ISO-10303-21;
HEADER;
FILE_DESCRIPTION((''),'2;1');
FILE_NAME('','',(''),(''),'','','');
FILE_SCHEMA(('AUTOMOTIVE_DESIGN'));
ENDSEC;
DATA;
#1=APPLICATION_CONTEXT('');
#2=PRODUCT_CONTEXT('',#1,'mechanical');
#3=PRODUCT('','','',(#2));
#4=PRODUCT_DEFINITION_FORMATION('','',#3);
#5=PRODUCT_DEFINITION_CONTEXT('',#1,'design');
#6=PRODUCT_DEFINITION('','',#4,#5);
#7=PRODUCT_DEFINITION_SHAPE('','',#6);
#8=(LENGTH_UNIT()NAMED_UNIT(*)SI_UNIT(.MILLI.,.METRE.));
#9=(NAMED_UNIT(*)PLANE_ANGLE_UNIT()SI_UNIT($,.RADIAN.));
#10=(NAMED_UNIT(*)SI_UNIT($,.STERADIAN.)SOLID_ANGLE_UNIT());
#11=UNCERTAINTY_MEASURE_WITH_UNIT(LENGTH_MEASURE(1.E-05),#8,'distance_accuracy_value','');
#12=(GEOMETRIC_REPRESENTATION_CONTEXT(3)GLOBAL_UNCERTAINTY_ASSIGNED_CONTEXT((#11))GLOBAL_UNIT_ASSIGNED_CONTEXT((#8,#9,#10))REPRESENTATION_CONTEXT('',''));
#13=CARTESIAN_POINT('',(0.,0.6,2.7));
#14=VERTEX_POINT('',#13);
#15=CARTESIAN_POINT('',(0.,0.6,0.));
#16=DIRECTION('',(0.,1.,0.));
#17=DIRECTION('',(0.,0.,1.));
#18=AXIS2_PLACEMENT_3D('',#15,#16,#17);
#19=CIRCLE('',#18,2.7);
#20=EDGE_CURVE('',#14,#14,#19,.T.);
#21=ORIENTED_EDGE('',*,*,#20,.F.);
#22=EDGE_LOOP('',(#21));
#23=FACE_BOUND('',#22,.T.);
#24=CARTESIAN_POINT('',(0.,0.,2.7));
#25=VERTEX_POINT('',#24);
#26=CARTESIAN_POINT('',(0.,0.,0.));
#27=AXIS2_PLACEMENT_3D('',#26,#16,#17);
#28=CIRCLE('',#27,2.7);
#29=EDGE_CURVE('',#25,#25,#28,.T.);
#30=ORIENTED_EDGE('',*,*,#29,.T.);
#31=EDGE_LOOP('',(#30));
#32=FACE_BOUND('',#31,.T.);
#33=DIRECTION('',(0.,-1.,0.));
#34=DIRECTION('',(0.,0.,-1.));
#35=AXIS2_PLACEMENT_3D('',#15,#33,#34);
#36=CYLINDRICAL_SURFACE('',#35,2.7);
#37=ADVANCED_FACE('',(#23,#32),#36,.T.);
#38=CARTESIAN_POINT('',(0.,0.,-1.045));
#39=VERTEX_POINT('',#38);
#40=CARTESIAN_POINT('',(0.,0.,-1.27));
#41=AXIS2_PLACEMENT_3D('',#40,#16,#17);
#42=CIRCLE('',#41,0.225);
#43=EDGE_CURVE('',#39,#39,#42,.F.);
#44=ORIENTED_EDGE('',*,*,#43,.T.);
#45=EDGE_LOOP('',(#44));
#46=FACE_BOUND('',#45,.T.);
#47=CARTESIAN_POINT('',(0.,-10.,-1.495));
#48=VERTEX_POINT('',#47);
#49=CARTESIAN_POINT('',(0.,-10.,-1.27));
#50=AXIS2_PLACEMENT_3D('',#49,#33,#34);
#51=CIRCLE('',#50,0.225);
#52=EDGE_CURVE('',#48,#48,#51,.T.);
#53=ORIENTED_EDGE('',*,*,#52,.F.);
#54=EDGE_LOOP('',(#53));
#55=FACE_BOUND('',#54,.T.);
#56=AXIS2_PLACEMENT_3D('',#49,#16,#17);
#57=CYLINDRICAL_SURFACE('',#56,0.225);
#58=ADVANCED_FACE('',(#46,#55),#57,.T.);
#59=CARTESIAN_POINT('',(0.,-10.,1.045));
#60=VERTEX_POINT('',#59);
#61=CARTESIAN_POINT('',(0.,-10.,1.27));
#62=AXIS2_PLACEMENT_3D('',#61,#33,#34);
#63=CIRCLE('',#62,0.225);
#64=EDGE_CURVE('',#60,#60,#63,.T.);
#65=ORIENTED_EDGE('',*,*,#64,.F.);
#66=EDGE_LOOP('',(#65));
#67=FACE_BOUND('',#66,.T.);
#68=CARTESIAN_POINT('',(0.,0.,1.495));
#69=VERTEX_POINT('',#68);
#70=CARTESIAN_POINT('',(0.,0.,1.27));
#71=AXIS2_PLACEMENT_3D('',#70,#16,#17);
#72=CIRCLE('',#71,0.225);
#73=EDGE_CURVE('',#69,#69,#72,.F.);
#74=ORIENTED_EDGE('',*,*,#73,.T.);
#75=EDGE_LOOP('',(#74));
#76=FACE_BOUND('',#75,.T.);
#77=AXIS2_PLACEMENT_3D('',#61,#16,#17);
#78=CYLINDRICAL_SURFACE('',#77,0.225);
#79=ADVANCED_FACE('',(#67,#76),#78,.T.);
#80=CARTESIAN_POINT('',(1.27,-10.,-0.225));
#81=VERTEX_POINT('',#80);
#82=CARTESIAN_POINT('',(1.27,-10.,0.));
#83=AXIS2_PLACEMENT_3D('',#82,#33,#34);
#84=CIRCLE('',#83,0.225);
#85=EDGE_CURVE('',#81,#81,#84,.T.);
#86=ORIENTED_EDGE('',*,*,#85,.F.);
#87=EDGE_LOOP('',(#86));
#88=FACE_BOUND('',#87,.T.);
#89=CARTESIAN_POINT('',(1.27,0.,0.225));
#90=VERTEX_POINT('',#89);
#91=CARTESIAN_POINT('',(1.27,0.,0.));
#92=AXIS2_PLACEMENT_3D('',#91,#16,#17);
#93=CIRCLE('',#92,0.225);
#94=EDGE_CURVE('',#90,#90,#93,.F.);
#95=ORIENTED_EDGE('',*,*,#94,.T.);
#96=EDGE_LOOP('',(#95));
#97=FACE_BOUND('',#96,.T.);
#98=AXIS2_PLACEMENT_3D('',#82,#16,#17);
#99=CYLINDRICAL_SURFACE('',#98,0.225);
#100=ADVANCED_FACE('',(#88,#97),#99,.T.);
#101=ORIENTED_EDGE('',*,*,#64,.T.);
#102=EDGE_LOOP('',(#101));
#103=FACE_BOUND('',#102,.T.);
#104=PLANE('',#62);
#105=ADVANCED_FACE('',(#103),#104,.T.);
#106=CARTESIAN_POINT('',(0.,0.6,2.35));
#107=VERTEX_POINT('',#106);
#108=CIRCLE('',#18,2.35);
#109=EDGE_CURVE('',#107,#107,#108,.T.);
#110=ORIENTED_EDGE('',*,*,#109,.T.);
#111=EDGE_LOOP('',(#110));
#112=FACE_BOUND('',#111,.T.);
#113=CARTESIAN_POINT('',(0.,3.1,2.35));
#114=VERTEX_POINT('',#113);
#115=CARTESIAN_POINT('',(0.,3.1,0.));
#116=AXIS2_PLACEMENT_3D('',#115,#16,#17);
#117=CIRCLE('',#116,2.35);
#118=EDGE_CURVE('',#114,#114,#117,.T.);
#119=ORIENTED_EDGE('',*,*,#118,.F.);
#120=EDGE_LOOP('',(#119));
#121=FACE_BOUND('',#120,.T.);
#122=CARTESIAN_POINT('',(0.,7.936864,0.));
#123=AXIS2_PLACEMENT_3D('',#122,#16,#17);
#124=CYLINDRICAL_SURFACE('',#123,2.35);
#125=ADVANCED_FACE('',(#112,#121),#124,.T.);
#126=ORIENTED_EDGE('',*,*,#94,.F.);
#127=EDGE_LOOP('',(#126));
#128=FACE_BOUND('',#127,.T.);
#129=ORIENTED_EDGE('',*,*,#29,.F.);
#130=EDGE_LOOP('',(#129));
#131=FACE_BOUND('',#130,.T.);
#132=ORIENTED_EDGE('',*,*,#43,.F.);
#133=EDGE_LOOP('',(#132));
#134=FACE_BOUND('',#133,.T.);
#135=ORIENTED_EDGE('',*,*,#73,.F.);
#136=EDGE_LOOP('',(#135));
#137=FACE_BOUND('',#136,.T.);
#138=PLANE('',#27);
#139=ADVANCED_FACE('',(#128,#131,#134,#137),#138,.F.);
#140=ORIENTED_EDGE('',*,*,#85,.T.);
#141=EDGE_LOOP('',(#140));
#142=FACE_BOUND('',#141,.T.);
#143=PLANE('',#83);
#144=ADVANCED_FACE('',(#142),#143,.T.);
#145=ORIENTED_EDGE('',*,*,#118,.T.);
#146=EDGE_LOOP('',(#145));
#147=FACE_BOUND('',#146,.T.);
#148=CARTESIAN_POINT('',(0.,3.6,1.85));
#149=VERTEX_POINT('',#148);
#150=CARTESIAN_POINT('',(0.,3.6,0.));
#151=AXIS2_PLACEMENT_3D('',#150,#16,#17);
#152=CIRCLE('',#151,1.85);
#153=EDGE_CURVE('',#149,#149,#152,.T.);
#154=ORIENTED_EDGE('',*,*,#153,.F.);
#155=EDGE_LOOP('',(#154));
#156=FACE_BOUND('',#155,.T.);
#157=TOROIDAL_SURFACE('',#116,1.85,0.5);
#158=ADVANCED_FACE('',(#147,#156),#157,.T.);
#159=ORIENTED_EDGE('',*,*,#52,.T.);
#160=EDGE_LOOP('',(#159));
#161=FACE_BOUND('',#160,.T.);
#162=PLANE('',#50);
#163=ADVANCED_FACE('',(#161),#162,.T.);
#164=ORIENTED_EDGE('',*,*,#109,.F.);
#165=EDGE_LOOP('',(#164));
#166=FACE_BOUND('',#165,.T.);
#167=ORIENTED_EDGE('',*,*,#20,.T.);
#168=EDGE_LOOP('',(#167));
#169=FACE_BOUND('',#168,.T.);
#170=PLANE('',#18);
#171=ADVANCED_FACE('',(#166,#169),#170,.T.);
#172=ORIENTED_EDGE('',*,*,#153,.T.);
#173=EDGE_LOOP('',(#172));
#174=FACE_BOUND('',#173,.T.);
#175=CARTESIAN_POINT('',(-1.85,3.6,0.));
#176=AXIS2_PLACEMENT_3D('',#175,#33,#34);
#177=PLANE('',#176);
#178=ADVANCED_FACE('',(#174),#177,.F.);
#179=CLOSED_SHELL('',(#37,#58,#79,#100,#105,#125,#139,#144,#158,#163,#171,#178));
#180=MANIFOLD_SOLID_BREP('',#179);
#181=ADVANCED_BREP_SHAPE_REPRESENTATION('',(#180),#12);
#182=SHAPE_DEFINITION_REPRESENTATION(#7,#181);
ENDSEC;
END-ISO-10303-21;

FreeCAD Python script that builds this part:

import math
import FreeCAD as App
import Part
import Sketcher
Q = App.Units.Quantity

doc = App.newDocument("Part")
params = doc.addObject("Spreadsheet::Sheet", "Params")
for row, (alias, value) in enumerate([
    ("sketch1_diameter", "5.4 mm"),
    ("pad1_length", "0.6 mm"),
    ("sketch2_radius", "0.5 mm"),
    ("sketch2_height", "3 mm"),
    ("sketch2_width", "2.35 mm"),
    ("revolution_angle", "360 deg"),
    ("sketch3_diameter", "0.45 mm"),
    ("pad2_length", "10 mm"),
], start=1):
    params.set(f"A{row}", alias)
    params.set(f"B{row}", "=" + value)
    params.setAlias(f"B{row}", alias)

body = doc.addObject("PartDesign::Body", "Body")

# Sketch on XZ plane
sketch1 = body.newObject("Sketcher::SketchObject", "Sketch")
sketch1.AttachmentSupport = (doc.getObject("XZ_Plane"), [""])
sketch1.MapMode = "FlatFace"
sketch1.addGeometry(Part.Circle(App.Vector(0, 0, 0), App.Vector(0, 0, 1), 2.7), False)
sketch1.addConstraint(Sketcher.Constraint("Coincident", 0, 3, -1, 1))
sketch1.addConstraint(Sketcher.Constraint("Diameter", 0, Q("5.4 mm")))
sketch1.setExpression("Constraints[1]", "Params.sketch1_diameter")
pad1 = body.newObject("PartDesign::Pad", "Pad")
pad1.Profile = sketch1
pad1.setExpression("Length", "Params.pad1_length")
pad1.Reversed = True

# Sketch on XY plane
sketch2 = body.newObject("Sketcher::SketchObject", "Sketch001")
sketch2.AttachmentSupport = (doc.getObject("XY_Plane"), [""])
sketch2.MapMode = "FlatFace"
sketch2.addGeometry(Part.LineSegment(App.Vector(-2.4, 0.6, 0), App.Vector(0, 0.6, 0)), False)
sketch2.addGeometry(Part.LineSegment(App.Vector(0, 0.6, 0), App.Vector(0, 3.6, 0)), False)
sketch2.addGeometry(Part.LineSegment(App.Vector(0, 3.6, 0), App.Vector(-1.9, 3.6, 0)), False)
sketch2.addGeometry(Part.ArcOfCircle(Part.Circle(App.Vector(-1.8, 3.1, 0), App.Vector(0, 0, 1), 0.5), math.radians(90), math.radians(180)), False)
sketch2.addGeometry(Part.LineSegment(App.Vector(-2.4, 3.1, 0), App.Vector(-2.4, 0.6, 0)), False)
sketch2.addConstraint(Sketcher.Constraint("Coincident", 0, 2, 1, 1))
sketch2.addConstraint(Sketcher.Constraint("Coincident", 1, 2, 2, 1))
sketch2.addConstraint(Sketcher.Constraint("Tangent", 2, 2, 3, 1))
sketch2.addConstraint(Sketcher.Constraint("Tangent", 3, 2, 4, 1))
sketch2.addConstraint(Sketcher.Constraint("Coincident", 4, 2, 0, 1))
sketch2.addConstraint(Sketcher.Constraint("Horizontal", 0))
sketch2.addConstraint(Sketcher.Constraint("Vertical", 1))
sketch2.addConstraint(Sketcher.Constraint("Horizontal", 2))
sketch2.addConstraint(Sketcher.Constraint("Vertical", 4))
sketch2.addConstraint(Sketcher.Constraint("PointOnObject", 0, 2, -2))
sketch2.addConstraint(Sketcher.Constraint("Radius", 3, Q("0.5 mm")))
sketch2.addConstraint(Sketcher.Constraint("DistanceY", 1, 1, 1, 2, Q("3 mm")))
sketch2.addConstraint(Sketcher.Constraint("DistanceX", 0, 1, 0, 2, Q("2.35 mm")))
sketch2.addConstraint(Sketcher.Constraint("DistanceY", -1, 1, 3, 3, Q("3.1 mm")))
sketch2.setExpression("Constraints[10]", "Params.sketch2_radius")
sketch2.setExpression("Constraints[11]", "Params.sketch2_height")
sketch2.setExpression("Constraints[12]", "Params.sketch2_width")
revolution = body.newObject("PartDesign::Revolution", "Revolution")
revolution.Profile = sketch2
revolution.ReferenceAxis = (sketch2, ["V_Axis"])
revolution.setExpression("Angle", "Params.revolution_angle")

# Sketch on XZ plane
sketch3 = body.newObject("Sketcher::SketchObject", "Sketch002")
sketch3.AttachmentSupport = (doc.getObject("XZ_Plane"), [""])
sketch3.MapMode = "FlatFace"
sketch3.addGeometry(Part.Circle(App.Vector(1.27, 0, 0), App.Vector(0, 0, 1), 0.23), False)
sketch3.addGeometry(Part.Circle(App.Vector(0, 1.27, 0), App.Vector(0, 0, 1), 0.23), False)
sketch3.addGeometry(Part.Circle(App.Vector(0, -1.27, 0), App.Vector(0, 0, 1), 0.23), False)
sketch3.addConstraint(Sketcher.Constraint("Equal", 0, 1))
sketch3.addConstraint(Sketcher.Constraint("Equal", 1, 2))
sketch3.addConstraint(Sketcher.Constraint("Symmetric", 1, 3, 2, 3, -1, 1))
sketch3.addConstraint(Sketcher.Constraint("PointOnObject", 0, 3, -1))
sketch3.addConstraint(Sketcher.Constraint("PointOnObject", 1, 3, -2))
sketch3.addConstraint(Sketcher.Constraint("Diameter", 0, Q("0.45 mm")))
sketch3.addConstraint(Sketcher.Constraint("DistanceX", -1, 1, 0, 3, Q("1.27 mm")))
sketch3.addConstraint(Sketcher.Constraint("DistanceY", -1, 1, 1, 3, Q("1.27 mm")))
sketch3.setExpression("Constraints[5]", "Params.sketch3_diameter")
pad2 = body.newObject("PartDesign::Pad", "Pad001")
pad2.Profile = sketch3
pad2.setExpression("Length", "Params.pad2_length")

doc.recompute()
